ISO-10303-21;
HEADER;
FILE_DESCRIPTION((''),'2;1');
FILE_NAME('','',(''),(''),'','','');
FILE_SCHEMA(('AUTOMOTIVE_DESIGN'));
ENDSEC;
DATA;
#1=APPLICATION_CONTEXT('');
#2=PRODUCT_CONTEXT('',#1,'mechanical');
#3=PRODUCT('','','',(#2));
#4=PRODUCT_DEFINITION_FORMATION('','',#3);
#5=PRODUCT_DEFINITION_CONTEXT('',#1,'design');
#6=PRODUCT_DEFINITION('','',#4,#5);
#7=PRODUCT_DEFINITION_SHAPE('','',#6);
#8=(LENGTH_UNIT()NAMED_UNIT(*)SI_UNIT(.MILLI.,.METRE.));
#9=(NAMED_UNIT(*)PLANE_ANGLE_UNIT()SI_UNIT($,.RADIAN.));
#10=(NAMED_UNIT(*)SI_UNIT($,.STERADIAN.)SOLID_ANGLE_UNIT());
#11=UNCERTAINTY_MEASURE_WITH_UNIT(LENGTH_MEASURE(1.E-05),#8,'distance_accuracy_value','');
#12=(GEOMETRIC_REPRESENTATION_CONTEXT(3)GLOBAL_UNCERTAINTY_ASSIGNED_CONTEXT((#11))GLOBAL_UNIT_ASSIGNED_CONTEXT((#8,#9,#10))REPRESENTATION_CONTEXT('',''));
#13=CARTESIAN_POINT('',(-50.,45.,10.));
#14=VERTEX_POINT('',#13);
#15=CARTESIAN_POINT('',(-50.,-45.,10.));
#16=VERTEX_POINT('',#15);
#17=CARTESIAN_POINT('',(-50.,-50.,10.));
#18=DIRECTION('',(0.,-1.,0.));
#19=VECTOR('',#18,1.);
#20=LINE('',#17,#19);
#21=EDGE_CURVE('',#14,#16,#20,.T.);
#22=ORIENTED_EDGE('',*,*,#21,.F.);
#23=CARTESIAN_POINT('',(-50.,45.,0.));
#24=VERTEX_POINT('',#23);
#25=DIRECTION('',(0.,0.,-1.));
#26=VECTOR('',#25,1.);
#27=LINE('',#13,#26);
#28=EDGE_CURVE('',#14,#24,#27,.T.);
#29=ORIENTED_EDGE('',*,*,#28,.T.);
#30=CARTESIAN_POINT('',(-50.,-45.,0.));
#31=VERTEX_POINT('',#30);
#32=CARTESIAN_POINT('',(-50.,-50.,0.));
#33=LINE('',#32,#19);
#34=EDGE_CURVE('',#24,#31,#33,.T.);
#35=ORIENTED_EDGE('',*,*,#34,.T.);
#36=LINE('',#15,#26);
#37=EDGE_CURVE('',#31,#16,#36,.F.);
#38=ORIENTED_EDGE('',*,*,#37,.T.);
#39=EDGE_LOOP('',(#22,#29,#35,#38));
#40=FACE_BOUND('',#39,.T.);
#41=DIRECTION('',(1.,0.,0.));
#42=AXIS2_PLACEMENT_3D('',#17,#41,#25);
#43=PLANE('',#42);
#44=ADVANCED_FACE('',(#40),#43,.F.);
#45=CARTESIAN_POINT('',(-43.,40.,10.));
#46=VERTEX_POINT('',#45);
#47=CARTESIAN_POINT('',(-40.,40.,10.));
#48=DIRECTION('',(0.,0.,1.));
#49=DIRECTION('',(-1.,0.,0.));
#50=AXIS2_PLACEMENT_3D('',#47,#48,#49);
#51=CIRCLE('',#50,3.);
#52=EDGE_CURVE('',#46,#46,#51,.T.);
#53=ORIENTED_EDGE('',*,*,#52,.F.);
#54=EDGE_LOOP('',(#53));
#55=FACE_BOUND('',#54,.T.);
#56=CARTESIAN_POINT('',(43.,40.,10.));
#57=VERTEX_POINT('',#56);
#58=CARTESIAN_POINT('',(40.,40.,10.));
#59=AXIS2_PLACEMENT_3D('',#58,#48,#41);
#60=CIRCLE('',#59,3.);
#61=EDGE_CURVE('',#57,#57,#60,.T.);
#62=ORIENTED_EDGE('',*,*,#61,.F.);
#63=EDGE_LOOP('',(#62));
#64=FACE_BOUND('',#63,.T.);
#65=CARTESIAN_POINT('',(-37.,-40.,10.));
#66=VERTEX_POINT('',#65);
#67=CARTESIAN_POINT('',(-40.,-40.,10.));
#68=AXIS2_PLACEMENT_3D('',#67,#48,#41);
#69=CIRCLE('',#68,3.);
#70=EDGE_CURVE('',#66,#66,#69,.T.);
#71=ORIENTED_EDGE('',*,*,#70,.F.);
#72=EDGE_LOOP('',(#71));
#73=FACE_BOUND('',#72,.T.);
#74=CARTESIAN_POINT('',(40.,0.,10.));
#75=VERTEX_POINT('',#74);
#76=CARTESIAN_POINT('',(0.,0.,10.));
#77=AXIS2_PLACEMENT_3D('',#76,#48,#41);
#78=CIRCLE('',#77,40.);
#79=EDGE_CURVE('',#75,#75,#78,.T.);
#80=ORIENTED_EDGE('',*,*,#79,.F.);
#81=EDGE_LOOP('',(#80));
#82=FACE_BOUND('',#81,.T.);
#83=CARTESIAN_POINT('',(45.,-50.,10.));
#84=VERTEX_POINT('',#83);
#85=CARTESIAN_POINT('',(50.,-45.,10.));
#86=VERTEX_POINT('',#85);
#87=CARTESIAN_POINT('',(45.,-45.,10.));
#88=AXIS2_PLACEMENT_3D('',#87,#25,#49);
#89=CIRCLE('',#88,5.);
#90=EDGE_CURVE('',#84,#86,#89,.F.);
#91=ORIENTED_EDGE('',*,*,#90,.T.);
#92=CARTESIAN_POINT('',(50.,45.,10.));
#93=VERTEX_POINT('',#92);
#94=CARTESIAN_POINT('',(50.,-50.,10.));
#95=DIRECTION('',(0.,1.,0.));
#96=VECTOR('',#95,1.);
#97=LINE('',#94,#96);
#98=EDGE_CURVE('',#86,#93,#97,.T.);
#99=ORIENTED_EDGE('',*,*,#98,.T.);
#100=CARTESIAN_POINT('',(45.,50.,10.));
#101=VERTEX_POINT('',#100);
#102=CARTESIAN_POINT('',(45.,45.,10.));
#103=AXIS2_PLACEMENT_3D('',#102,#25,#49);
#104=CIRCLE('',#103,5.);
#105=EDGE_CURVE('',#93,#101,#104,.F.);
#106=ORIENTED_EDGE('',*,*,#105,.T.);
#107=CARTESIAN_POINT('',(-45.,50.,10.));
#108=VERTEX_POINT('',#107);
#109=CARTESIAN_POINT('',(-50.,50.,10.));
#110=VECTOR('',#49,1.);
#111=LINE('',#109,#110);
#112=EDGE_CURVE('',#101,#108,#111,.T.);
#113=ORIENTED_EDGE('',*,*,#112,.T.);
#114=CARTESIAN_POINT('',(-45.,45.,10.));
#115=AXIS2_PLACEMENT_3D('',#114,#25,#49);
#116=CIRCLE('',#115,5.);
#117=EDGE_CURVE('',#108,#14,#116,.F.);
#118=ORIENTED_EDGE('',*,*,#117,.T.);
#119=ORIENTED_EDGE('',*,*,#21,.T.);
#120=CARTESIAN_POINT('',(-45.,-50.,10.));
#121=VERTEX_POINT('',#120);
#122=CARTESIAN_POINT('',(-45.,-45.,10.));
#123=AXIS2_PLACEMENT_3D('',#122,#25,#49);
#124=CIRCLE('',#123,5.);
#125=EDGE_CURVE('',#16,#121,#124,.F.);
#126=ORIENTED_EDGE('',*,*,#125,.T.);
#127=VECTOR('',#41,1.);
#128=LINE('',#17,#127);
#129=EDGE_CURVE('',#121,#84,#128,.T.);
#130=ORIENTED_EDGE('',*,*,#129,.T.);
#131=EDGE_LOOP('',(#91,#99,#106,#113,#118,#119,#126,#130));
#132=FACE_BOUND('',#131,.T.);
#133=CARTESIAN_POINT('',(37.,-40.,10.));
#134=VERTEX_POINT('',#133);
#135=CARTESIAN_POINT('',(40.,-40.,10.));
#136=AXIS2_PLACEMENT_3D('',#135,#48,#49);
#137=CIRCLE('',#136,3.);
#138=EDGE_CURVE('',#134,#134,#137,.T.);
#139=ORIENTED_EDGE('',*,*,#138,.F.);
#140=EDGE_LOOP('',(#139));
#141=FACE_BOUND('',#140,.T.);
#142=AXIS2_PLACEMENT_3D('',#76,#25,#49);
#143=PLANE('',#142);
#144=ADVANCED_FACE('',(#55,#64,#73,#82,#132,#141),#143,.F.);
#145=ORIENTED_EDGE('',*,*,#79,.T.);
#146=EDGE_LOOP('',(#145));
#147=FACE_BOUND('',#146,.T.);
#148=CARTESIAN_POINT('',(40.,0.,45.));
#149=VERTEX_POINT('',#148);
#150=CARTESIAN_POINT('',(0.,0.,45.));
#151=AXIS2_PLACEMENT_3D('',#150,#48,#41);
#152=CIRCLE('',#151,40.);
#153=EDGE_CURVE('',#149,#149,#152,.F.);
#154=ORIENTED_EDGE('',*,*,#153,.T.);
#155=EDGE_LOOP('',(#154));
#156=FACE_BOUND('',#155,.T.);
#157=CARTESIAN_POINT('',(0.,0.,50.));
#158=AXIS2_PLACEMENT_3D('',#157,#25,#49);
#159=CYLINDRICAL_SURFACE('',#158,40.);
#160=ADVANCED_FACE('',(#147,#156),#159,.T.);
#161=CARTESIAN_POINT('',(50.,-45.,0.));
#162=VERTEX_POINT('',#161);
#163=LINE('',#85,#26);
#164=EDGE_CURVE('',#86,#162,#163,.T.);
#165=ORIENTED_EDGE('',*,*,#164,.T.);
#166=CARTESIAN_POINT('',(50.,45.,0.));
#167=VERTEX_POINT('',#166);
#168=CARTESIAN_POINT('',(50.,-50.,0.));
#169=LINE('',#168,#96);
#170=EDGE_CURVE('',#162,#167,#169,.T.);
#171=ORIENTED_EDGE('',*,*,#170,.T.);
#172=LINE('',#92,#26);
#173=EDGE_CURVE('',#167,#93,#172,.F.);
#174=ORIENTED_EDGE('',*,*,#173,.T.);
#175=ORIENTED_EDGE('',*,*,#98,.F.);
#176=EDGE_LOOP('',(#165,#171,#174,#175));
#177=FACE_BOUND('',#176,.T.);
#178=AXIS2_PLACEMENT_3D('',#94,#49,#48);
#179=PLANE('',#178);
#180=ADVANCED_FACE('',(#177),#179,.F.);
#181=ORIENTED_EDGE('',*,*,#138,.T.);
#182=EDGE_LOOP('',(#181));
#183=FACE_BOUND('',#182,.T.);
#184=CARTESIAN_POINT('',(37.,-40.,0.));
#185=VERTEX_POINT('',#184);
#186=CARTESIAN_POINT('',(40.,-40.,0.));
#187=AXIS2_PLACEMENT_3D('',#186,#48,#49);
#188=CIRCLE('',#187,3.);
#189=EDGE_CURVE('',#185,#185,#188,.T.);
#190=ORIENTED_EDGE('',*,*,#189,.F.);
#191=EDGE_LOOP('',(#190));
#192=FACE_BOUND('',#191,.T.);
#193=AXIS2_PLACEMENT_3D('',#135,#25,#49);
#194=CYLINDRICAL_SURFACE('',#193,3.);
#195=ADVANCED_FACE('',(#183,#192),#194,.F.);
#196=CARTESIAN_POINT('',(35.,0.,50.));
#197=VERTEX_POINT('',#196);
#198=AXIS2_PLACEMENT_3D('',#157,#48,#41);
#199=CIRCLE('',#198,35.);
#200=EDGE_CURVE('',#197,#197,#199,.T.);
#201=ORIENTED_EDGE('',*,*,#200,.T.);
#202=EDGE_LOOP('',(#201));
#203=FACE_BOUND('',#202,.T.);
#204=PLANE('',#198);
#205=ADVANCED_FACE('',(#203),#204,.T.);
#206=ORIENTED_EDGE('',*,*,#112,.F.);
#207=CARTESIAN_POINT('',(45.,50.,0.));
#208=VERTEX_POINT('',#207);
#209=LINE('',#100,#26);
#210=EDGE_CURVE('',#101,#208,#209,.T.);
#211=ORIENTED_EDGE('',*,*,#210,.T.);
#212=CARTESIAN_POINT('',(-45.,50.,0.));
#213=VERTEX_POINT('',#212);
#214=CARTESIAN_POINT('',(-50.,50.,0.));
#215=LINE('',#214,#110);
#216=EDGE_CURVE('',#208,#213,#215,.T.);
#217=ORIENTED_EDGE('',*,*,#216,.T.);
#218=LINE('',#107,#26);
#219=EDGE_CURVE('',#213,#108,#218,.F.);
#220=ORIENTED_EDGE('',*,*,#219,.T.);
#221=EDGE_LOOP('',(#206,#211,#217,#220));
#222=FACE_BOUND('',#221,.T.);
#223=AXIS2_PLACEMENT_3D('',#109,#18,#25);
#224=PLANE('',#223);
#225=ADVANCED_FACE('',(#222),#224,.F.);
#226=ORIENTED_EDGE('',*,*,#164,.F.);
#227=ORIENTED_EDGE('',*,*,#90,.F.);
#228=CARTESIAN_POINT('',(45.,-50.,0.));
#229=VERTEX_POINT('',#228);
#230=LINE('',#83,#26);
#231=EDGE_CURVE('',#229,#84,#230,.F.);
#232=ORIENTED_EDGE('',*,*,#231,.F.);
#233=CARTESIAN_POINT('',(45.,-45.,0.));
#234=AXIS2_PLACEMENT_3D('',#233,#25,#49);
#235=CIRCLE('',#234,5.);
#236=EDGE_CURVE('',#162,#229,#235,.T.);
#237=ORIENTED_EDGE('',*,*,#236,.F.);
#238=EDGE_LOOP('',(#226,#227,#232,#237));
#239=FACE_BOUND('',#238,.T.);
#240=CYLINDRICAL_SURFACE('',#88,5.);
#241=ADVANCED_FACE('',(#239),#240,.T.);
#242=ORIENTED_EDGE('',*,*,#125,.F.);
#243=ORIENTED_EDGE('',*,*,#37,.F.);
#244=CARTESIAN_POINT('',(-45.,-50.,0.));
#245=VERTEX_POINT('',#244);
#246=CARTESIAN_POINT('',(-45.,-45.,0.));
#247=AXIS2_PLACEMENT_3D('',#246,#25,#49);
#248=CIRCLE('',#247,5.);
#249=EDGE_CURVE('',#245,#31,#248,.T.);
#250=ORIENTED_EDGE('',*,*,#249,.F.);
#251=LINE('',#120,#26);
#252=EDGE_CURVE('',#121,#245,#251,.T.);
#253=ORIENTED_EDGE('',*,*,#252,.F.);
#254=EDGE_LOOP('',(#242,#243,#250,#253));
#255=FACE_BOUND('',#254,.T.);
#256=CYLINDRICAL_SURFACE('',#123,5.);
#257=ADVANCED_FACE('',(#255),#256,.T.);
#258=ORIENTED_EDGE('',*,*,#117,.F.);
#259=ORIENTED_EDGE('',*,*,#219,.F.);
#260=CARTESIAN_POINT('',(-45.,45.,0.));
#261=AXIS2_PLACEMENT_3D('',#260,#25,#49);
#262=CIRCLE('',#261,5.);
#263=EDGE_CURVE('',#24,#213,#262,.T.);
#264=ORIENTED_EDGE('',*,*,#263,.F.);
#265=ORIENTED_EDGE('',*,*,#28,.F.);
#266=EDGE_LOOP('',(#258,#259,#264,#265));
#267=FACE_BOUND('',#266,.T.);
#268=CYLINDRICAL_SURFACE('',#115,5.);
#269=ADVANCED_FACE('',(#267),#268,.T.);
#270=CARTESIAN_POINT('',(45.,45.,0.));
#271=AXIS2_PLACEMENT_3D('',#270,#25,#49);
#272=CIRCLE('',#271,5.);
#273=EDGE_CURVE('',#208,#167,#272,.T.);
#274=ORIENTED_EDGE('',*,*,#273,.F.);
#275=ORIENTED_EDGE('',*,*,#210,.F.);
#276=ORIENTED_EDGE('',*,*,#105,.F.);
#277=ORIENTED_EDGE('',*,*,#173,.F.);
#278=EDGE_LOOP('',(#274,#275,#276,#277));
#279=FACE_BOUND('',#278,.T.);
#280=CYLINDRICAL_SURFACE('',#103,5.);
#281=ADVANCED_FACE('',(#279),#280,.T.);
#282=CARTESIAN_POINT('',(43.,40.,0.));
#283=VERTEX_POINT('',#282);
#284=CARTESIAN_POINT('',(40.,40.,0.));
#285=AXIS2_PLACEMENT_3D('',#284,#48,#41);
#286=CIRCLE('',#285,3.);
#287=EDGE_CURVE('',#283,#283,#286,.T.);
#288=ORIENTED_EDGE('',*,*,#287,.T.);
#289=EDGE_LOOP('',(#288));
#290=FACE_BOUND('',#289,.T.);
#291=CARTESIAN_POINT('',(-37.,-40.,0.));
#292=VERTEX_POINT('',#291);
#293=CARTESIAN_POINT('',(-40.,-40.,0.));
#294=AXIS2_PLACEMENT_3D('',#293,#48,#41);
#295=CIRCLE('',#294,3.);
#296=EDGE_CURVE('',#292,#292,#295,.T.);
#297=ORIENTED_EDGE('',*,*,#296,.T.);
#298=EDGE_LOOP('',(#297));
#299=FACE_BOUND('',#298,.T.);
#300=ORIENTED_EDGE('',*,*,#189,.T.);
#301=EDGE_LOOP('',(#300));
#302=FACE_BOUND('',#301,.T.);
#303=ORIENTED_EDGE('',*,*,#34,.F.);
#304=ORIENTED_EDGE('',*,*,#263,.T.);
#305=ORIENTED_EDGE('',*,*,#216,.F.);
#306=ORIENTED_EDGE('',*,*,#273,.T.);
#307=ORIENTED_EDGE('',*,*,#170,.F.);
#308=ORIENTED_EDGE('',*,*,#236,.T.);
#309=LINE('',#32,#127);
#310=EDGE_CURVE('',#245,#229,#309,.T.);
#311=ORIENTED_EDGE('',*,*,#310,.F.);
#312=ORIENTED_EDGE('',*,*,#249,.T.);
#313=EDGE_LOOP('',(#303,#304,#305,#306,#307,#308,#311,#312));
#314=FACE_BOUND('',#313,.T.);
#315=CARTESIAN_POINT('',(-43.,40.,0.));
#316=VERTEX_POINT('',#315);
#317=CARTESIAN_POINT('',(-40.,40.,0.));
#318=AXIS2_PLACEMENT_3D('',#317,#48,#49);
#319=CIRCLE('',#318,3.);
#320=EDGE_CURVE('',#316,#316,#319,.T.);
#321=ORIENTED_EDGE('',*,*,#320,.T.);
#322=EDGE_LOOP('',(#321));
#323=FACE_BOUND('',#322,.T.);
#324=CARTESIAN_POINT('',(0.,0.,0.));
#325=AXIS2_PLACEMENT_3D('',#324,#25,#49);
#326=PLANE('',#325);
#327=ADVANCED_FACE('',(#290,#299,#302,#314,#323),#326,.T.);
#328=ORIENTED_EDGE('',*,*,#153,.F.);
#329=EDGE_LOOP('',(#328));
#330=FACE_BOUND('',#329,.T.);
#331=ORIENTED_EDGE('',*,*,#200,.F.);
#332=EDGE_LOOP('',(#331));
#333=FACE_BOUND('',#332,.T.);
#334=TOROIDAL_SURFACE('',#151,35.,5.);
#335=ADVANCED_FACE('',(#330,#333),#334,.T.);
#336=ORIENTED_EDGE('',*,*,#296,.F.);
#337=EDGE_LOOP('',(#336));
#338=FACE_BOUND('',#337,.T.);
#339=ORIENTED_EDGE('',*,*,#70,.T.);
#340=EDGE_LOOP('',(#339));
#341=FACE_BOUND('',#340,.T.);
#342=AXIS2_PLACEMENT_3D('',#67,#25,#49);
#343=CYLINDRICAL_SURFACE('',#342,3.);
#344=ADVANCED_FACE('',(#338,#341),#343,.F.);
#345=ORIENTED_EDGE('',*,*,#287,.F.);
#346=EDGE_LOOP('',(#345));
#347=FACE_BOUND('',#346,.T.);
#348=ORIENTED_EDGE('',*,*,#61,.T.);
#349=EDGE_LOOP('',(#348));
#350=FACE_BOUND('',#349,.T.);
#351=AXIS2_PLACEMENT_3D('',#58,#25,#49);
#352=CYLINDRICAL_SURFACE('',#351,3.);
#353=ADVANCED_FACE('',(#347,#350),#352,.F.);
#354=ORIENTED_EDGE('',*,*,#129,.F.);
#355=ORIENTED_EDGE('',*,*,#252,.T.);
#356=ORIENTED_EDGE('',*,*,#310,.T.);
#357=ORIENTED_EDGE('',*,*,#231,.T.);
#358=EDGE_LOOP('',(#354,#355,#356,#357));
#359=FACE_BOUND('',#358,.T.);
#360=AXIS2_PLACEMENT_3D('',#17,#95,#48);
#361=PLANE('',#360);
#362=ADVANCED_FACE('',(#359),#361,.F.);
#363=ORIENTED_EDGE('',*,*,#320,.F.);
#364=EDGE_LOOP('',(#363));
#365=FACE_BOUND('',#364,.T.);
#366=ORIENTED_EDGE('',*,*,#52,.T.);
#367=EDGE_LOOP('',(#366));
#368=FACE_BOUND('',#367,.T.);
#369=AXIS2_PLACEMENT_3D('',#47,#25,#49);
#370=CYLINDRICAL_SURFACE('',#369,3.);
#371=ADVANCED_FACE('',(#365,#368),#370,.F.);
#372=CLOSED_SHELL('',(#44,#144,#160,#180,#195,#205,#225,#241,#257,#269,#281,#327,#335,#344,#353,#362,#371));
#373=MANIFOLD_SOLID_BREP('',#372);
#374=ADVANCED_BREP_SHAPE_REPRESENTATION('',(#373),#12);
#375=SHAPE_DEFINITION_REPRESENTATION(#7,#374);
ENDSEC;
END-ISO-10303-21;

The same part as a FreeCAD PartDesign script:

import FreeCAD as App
import Part
import Sketcher


def edges_at(feature, points):
    """Names of the edges that pass closest to the given points."""
    edges = feature.Shape.Edges
    near = lambda p: min(range(len(edges)), key=lambda i: edges[i].distToShape(Part.Vertex(*p))[0])
    return sorted({f"Edge{near(p) + 1}" for p in points})

doc = App.newDocument("Part")
params = doc.addObject("Spreadsheet::Sheet", "Params")
for row, (alias, value) in enumerate([
    ("sketch1_diameter", "6 mm"),
    ("sketch1_width", "100 mm"),
    ("pad1_length", "10 mm"),
    ("sketch2_diameter", "80 mm"),
    ("pad2_length", "40 mm"),
    ("fillet_radius", "5 mm"),
], start=1):
    params.set(f"A{row}", alias)
    params.set(f"B{row}", "=" + value)
    params.setAlias(f"B{row}", alias)

body = doc.addObject("PartDesign::Body", "Body")

# Sketch on XY plane
sketch1 = doc.addObject("Sketcher::SketchObject", "Sketch")
body.addObject(sketch1)
sketch1.AttachmentSupport = (doc.XY_Plane, [""])
sketch1.MapMode = "FlatFace"
sketch1.addGeometry([
    Part.LineSegment(App.Vector(-50, 50, 0), App.Vector(-50, -50, 0)),  # 0
    Part.LineSegment(App.Vector(-50, -50, 0), App.Vector(50, -50, 0)),  # 1
    Part.LineSegment(App.Vector(50, -50, 0), App.Vector(50, 50, 0)),  # 2
    Part.LineSegment(App.Vector(50, 50, 0), App.Vector(-50, 50, 0)),  # 3
    Part.Circle(App.Vector(-40, -40, 0), App.Vector(0, 0, 1), 3),  # 4
    Part.Circle(App.Vector(40, -40, 0), App.Vector(0, 0, 1), 3),  # 5
    Part.Circle(App.Vector(-40, 40, 0), App.Vector(0, 0, 1), 3),  # 6
    Part.Circle(App.Vector(40, 40, 0), App.Vector(0, 0, 1), 3),  # 7
], False)
sketch1.addConstraint([
    Sketcher.Constraint("Coincident", 0, 2, 1, 1),
    Sketcher.Constraint("Coincident", 1, 2, 2, 1),
    Sketcher.Constraint("Coincident", 2, 2, 3, 1),
    Sketcher.Constraint("Coincident", 3, 2, 0, 1),
    Sketcher.Constraint("Vertical", 0),
    Sketcher.Constraint("Horizontal", 1),
    Sketcher.Constraint("Vertical", 2),
    Sketcher.Constraint("Horizontal", 3),
    Sketcher.Constraint("Equal", 4, 5),
    Sketcher.Constraint("Equal", 5, 6),
    Sketcher.Constraint("Equal", 6, 7),
    Sketcher.Constraint("Symmetric", 5, 3, 6, 3, -1, 1),
    Sketcher.Constraint("Symmetric", 4, 3, 7, 3, -1, 1),
    Sketcher.Constraint("Symmetric", 0, 2, 2, 2, -1, 1),
    Sketcher.Constraint("Symmetric", 4, 3, 5, 3, -2),
    Sketcher.Constraint("Equal", 3, 0),
    Sketcher.Constraint("Diameter", 4, 6.0),
    Sketcher.Constraint("DistanceX", 1, 1, 1, 2, 100.0),
    Sketcher.Constraint("DistanceX", 4, 3, -1, 1, 40.0),
    Sketcher.Constraint("DistanceY", 4, 3, -1, 1, 40.0),
])
sketch1.setExpression("Constraints[16]", "Params.sketch1_diameter")
sketch1.setExpression("Constraints[17]", "Params.sketch1_width")
pad1 = doc.addObject("PartDesign::Pad", "Pad")
body.addObject(pad1)
pad1.Profile = sketch1
pad1.setExpression("Length", "Params.pad1_length")

# Sketch on XY plane
sketch2 = doc.addObject("Sketcher::SketchObject", "Sketch001")
body.addObject(sketch2)
sketch2.AttachmentSupport = (doc.XY_Plane, [""])
sketch2.MapMode = "FlatFace"
sketch2.AttachmentOffset = App.Placement(App.Vector(0, 0, 10), App.Rotation())
sketch2.addGeometry(Part.Circle(App.Vector(0, 0, 0), App.Vector(0, 0, 1), 40), False)
sketch2.addConstraint([
    Sketcher.Constraint("Coincident", 0, 3, -1, 1),
    Sketcher.Constraint("Diameter", 0, 80.0),
])
sketch2.setExpression("Constraints[1]", "Params.sketch2_diameter")
pad2 = doc.addObject("PartDesign::Pad", "Pad001")
body.addObject(pad2)
pad2.Profile = sketch2
pad2.setExpression("Length", "Params.pad2_length")
doc.recompute()

fillet = doc.addObject("PartDesign::Fillet", "Fillet")
body.addObject(fillet)
fillet.Base = (pad2, edges_at(pad2, [
    (-40, 0, 50),
    (50, -50, 5),
    (-50, -50, 5),
    (-50, 50, 5),
    (50, 50, 5),
]))
fillet.setExpression("Radius", "Params.fillet_radius")

doc.recompute()
